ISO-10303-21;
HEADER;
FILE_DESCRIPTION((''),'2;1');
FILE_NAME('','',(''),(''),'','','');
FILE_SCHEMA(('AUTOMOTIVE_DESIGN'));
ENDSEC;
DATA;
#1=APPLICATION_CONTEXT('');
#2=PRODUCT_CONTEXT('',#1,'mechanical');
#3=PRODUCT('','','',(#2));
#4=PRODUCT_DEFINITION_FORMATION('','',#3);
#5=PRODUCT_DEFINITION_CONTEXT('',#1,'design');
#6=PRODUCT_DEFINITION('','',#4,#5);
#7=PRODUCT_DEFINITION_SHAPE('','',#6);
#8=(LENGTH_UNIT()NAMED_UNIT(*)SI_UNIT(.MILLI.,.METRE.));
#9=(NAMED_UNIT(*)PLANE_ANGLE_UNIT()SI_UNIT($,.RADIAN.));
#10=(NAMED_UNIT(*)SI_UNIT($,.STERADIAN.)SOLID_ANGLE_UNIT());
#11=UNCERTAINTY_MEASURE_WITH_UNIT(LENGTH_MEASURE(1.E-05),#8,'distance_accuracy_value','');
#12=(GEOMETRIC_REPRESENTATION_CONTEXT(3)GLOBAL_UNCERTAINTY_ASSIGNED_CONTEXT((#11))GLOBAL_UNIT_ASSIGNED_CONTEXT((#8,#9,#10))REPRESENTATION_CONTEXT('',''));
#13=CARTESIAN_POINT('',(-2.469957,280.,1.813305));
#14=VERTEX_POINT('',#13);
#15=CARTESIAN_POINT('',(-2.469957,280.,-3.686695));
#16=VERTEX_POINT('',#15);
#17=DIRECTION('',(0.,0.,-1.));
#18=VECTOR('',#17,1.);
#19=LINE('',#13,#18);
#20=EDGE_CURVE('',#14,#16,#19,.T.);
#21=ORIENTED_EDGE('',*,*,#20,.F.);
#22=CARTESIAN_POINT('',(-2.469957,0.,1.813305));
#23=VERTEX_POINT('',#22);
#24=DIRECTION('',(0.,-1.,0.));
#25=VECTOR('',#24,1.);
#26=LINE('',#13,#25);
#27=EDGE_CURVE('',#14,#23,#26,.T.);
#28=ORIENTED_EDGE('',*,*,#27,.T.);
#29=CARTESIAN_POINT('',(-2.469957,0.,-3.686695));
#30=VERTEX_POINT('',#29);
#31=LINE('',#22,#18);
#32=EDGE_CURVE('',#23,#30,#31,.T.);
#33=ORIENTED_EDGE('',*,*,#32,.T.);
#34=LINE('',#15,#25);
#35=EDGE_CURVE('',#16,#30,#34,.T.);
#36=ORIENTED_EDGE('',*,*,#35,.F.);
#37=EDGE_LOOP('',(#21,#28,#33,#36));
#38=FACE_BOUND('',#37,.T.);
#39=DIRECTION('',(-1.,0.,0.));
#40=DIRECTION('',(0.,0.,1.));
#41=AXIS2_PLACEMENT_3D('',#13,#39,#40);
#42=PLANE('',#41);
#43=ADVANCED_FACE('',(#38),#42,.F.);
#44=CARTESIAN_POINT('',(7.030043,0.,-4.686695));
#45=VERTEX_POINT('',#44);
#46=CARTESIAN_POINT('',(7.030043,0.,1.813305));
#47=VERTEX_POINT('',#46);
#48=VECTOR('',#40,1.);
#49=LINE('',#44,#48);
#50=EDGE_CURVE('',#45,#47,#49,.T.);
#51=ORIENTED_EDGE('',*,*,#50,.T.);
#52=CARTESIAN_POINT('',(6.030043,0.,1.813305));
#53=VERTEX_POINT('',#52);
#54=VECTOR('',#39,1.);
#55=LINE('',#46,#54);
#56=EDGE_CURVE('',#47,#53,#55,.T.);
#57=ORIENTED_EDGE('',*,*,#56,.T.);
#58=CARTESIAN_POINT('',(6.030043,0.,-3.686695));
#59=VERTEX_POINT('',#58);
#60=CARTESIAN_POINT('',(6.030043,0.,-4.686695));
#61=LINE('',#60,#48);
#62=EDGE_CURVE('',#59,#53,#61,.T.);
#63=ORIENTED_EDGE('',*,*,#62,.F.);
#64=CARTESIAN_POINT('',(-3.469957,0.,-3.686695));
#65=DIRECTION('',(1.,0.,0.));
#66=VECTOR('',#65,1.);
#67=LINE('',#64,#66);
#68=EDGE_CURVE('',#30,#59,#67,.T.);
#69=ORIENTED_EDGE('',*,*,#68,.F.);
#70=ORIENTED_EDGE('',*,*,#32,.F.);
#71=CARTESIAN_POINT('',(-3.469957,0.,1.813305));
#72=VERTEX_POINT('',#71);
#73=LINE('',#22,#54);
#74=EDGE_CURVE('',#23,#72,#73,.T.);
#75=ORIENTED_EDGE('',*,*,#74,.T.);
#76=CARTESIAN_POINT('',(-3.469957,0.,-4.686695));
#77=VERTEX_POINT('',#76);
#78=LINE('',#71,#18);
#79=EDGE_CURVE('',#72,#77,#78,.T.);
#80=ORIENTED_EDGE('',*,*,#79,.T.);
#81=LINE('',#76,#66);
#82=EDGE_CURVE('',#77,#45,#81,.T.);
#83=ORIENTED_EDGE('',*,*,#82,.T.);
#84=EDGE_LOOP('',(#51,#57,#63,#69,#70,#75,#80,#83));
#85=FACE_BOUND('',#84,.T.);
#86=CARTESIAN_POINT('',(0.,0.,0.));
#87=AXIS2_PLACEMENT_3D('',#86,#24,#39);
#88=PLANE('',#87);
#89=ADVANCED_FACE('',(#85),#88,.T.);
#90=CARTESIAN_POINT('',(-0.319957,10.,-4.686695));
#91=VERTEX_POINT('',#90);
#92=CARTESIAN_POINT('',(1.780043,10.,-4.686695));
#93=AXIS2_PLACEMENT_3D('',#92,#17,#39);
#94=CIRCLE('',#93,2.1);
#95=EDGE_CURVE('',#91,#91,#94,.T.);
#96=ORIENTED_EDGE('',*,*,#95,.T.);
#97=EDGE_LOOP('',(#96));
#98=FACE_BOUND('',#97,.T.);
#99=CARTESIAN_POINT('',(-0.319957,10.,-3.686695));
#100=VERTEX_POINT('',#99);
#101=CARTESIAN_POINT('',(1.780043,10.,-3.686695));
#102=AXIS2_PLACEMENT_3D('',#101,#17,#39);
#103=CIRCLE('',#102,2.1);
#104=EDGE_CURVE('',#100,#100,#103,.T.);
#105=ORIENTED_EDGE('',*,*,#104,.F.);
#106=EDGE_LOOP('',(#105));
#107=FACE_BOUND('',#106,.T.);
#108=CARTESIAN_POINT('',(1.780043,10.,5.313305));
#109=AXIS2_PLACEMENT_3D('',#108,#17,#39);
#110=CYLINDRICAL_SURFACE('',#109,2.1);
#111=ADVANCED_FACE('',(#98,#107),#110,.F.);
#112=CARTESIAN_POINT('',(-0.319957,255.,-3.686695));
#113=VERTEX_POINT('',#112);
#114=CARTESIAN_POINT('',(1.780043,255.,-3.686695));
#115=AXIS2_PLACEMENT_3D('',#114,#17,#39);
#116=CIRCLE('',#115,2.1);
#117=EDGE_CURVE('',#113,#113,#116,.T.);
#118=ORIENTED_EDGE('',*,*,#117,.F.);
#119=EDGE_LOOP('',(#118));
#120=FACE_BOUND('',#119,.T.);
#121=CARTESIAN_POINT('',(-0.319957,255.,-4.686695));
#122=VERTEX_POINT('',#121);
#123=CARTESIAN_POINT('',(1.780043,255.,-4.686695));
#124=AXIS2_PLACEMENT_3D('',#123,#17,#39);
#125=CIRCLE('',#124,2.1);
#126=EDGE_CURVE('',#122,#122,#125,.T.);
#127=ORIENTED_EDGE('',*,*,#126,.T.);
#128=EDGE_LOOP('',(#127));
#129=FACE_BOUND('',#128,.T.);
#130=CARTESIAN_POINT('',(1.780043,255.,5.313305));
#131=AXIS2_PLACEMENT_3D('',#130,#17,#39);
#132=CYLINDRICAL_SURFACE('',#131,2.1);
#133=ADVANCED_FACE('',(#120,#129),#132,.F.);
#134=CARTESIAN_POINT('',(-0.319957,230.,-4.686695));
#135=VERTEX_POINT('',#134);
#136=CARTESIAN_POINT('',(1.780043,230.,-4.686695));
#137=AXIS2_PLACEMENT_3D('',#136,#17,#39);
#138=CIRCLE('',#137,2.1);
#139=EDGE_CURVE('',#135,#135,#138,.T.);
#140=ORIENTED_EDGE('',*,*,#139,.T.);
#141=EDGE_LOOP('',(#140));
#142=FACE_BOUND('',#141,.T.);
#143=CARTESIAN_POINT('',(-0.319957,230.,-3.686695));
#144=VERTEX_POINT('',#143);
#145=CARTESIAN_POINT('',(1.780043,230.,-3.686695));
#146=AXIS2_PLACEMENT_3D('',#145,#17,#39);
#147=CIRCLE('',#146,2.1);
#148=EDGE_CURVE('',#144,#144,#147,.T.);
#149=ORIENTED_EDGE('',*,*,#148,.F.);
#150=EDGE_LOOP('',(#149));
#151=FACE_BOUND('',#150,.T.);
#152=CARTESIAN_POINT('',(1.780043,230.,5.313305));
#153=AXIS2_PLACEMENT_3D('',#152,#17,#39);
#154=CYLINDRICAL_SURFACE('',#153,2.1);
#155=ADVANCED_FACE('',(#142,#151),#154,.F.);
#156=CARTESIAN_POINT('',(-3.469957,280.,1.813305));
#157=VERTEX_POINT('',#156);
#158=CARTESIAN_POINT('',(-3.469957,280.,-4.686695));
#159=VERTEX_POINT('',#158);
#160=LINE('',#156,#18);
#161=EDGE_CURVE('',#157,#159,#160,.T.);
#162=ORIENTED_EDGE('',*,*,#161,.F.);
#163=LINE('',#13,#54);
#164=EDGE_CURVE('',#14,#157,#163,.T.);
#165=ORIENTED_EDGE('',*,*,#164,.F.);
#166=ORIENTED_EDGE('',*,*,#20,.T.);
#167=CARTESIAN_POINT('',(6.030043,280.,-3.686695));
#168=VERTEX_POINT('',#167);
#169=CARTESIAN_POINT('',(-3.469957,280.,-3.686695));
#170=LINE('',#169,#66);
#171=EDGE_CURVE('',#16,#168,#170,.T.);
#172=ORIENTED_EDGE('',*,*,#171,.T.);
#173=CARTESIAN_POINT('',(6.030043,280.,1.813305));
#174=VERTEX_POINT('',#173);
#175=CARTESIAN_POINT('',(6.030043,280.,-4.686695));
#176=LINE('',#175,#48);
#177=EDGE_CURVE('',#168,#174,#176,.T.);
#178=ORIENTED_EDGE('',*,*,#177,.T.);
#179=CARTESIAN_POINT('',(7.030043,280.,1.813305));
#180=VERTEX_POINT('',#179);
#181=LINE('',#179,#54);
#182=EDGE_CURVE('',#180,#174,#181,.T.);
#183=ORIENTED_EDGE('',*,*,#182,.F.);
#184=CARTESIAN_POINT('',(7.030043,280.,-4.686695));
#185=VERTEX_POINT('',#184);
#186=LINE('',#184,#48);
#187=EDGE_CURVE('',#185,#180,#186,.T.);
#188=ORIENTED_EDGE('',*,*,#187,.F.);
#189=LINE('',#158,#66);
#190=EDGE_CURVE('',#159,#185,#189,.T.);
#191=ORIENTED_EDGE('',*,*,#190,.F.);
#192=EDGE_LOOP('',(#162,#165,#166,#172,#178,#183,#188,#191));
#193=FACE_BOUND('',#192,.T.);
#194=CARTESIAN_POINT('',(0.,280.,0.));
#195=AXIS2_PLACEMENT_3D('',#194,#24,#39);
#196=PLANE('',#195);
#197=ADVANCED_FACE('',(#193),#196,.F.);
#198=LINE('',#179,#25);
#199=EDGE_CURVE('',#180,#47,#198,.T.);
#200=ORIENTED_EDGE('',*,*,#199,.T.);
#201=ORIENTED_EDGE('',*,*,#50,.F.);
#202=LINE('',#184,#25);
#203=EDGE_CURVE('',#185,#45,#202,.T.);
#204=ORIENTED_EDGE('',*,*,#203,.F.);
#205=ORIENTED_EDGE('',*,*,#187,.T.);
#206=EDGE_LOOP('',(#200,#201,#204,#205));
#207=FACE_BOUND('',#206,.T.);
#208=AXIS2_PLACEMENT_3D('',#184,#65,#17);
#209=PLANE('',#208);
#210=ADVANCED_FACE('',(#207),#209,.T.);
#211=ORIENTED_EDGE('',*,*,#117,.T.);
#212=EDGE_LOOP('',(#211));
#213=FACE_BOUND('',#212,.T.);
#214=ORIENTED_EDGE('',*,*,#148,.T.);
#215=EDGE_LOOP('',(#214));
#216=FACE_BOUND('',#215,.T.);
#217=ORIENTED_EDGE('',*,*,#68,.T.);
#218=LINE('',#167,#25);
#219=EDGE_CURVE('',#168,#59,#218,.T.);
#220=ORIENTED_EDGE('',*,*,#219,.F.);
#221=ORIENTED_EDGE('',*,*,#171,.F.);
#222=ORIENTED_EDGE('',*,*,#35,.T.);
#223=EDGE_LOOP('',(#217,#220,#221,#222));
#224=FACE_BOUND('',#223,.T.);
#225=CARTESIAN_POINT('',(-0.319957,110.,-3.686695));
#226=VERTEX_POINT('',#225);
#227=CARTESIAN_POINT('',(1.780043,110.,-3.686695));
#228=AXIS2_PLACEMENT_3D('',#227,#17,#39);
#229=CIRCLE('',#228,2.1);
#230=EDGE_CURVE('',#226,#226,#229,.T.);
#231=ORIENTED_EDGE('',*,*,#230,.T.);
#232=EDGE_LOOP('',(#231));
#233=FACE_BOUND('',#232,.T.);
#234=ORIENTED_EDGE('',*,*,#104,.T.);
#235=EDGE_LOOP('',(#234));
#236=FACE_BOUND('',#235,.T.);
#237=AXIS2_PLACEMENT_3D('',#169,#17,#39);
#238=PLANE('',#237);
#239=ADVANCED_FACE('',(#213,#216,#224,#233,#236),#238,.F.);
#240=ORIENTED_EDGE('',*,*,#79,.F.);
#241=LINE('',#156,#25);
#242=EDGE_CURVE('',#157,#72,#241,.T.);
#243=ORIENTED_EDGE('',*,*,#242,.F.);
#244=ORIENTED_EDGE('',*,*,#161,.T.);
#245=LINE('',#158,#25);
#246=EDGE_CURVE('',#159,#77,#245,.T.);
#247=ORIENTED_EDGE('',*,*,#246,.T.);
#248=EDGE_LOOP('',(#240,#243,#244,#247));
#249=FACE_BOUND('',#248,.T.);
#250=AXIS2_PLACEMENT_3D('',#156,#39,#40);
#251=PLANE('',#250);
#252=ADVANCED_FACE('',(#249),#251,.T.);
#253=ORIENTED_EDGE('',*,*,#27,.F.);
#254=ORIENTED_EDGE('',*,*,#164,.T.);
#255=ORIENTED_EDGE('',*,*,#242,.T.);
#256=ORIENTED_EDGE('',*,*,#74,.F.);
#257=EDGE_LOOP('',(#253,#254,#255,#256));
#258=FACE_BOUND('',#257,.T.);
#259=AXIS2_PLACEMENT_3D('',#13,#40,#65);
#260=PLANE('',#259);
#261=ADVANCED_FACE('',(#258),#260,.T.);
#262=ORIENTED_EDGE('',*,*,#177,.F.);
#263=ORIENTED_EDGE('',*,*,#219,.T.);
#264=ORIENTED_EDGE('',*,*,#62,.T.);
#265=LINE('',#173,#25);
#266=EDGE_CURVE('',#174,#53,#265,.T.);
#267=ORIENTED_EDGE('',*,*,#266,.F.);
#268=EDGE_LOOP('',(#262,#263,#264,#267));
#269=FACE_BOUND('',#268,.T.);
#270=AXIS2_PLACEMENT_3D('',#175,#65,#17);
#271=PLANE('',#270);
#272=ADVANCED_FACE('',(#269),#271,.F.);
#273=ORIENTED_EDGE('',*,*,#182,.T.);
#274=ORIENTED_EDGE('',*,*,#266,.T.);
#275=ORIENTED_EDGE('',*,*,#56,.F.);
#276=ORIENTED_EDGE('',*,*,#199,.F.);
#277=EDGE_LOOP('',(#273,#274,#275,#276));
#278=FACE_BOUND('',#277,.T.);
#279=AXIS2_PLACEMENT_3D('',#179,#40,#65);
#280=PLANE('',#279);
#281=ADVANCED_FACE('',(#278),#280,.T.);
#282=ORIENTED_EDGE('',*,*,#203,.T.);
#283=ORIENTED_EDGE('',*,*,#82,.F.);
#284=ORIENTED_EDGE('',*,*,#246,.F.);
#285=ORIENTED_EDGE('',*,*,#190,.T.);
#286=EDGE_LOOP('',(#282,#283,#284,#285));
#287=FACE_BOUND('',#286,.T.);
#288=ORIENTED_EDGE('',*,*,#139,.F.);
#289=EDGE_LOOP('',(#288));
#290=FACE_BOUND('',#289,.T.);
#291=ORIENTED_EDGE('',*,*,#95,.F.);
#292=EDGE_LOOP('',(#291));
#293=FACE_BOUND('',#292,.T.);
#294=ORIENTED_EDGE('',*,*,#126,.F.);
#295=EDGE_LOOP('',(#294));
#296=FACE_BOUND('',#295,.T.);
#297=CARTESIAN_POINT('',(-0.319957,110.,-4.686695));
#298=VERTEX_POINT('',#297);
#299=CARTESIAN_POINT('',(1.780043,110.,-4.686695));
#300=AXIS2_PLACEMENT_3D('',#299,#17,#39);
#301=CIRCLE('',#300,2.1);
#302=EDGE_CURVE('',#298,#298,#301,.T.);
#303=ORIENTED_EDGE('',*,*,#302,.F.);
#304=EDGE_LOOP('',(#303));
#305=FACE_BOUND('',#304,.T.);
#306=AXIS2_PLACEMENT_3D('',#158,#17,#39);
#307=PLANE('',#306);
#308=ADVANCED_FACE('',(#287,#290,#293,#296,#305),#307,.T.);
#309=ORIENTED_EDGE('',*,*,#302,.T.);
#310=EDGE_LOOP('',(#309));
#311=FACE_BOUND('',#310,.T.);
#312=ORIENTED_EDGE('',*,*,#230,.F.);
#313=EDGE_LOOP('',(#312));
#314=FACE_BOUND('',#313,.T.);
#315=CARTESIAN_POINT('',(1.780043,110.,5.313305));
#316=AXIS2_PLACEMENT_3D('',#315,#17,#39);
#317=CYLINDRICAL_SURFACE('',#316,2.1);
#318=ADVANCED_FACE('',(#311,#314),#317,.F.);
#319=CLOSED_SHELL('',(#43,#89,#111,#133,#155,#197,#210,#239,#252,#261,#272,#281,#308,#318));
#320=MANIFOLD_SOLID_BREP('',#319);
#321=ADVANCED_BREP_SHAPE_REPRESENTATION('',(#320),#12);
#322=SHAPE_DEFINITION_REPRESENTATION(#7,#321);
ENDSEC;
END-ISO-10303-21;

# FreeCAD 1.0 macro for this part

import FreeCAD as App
import Part
import Sketcher


def add_polygon(sketch, points):
    """Adds a closed chain of lines whose ends are joined by coincident constraints."""
    first, n = sketch.GeometryCount, len(points)
    for a, b in zip(points, points[1:] + points[:1]):
        sketch.addGeometry(Part.LineSegment(App.Vector(*a, 0), App.Vector(*b, 0)), False)
    for i in range(n):
        sketch.addConstraint(Sketcher.Constraint("Coincident", first + i, 2, first + (i + 1) % n, 1))

doc = App.newDocument("Part")
params = doc.addObject("Spreadsheet::Sheet", "Params")
for row, (alias, value) in enumerate([
    ("sketch1_width", "1 mm"),
    ("sketch1_width2", "8.5 mm"),
    ("sketch1_height", "6.5 mm"),
    ("sketch1_height2", "5.5 mm"),
    ("pad1_length", "280 mm"),
    ("sketch2_diameter", "4.2 mm"),
    ("pocket1_length", "10 mm"),
], start=1):
    params.set(f"A{row}", alias)
    params.set(f"B{row}", "=" + value)
    params.setAlias(f"B{row}", alias)

body = doc.addObject("PartDesign::Body", "Body")

sketch1 = body.newObject("Sketcher::SketchObject", "Sketch")
sketch1.AttachmentSupport = (doc.getObject("XZ_Plane"), [""])
sketch1.MapMode = "FlatFace"
add_polygon(sketch1, [(-3.469957, -4.686695), (-3.469957, 1.813305), (-2.469957, 1.813305), (-2.469957, -3.686695), (6.030043, -3.686695), (6.030043, 1.813305), (7.030043, 1.813305), (7.030043, -4.686695)])
sketch1.addConstraint([
    Sketcher.Constraint("Vertical", 0),
    Sketcher.Constraint("Horizontal", 1),
    Sketcher.Constraint("Vertical", 2),
    Sketcher.Constraint("Horizontal", 3),
    Sketcher.Constraint("Vertical", 4),
    Sketcher.Constraint("Horizontal", 5),
    Sketcher.Constraint("Vertical", 6),
    Sketcher.Constraint("Horizontal", 7),
    Sketcher.Constraint("Horizontal", 1, 2, 4, 2),
    Sketcher.Constraint("Equal", 1, 5),
    Sketcher.Constraint("DistanceX", 1, 1, 1, 2, 1.0),
    Sketcher.Constraint("DistanceX", 3, 1, 3, 2, 8.5),
    Sketcher.Constraint("DistanceY", 0, 1, 0, 2, 6.5),
    Sketcher.Constraint("DistanceY", 2, 2, 2, 1, 5.5),
    Sketcher.Constraint("DistanceX", 0, 2, -1, 1, 3.469957),
    Sketcher.Constraint("DistanceY", -1, 1, 0, 2, 1.813305),
])
sketch1.setExpression("Constraints[18]", "Params.sketch1_width")
sketch1.setExpression("Constraints[19]", "Params.sketch1_width2")
sketch1.setExpression("Constraints[20]", "Params.sketch1_height")
sketch1.setExpression("Constraints[21]", "Params.sketch1_height2")
pad1 = body.newObject("PartDesign::Pad", "Pad")
pad1.Profile = sketch1
pad1.setExpression("Length", "Params.pad1_length")
pad1.Reversed = True

sketch2 = body.newObject("Sketcher::SketchObject", "Sketch001")
sketch2.AttachmentSupport = (doc.getObject("XY_Plane"), [""])
sketch2.MapMode = "FlatFace"
sketch2.AttachmentOffset = App.Placement(App.Vector(0, 0, -4.686695), App.Rotation())
sketch2.addGeometry([
    Part.Circle(App.Vector(1.780043, 230, 0), App.Vector(0, 0, 1), 2.1),
    Part.Circle(App.Vector(1.780043, 255, 0), App.Vector(0, 0, 1), 2.1),
    Part.Circle(App.Vector(1.780043, 110, 0), App.Vector(0, 0, 1), 2.1),
    Part.Circle(App.Vector(1.780043, 10, 0), App.Vector(0, 0, 1), 2.1),
], False)
sketch2.addConstraint([
    Sketcher.Constraint("Equal", 0, 1),
    Sketcher.Constraint("Equal", 1, 2),
    Sketcher.Constraint("Equal", 2, 3),
    Sketcher.Constraint("Vertical", 0, 3, 1, 3),
    Sketcher.Constraint("Vertical", 1, 3, 2, 3),
    Sketcher.Constraint("Vertical", 2, 3, 3, 3),
    Sketcher.Constraint("Diameter", 0, 4.2),
    Sketcher.Constraint("DistanceY", -1, 1, 0, 3, 230.0),
    Sketcher.Constraint("DistanceY", -1, 1, 1, 3, 255.0),
    Sketcher.Constraint("DistanceY", -1, 1, 2, 3, 110.0),
    Sketcher.Constraint("DistanceY", -1, 1, 3, 3, 10.0),
    Sketcher.Constraint("DistanceX", -1, 1, 0, 3, 1.780043),
])
sketch2.setExpression("Constraints[6]", "Params.sketch2_diameter")
pocket1 = body.newObject("PartDesign::Pocket", "Pocket")
pocket1.Profile = sketch2
pocket1.setExpression("Length", "Params.pocket1_length")
pocket1.Reversed = True

doc.recompute()
